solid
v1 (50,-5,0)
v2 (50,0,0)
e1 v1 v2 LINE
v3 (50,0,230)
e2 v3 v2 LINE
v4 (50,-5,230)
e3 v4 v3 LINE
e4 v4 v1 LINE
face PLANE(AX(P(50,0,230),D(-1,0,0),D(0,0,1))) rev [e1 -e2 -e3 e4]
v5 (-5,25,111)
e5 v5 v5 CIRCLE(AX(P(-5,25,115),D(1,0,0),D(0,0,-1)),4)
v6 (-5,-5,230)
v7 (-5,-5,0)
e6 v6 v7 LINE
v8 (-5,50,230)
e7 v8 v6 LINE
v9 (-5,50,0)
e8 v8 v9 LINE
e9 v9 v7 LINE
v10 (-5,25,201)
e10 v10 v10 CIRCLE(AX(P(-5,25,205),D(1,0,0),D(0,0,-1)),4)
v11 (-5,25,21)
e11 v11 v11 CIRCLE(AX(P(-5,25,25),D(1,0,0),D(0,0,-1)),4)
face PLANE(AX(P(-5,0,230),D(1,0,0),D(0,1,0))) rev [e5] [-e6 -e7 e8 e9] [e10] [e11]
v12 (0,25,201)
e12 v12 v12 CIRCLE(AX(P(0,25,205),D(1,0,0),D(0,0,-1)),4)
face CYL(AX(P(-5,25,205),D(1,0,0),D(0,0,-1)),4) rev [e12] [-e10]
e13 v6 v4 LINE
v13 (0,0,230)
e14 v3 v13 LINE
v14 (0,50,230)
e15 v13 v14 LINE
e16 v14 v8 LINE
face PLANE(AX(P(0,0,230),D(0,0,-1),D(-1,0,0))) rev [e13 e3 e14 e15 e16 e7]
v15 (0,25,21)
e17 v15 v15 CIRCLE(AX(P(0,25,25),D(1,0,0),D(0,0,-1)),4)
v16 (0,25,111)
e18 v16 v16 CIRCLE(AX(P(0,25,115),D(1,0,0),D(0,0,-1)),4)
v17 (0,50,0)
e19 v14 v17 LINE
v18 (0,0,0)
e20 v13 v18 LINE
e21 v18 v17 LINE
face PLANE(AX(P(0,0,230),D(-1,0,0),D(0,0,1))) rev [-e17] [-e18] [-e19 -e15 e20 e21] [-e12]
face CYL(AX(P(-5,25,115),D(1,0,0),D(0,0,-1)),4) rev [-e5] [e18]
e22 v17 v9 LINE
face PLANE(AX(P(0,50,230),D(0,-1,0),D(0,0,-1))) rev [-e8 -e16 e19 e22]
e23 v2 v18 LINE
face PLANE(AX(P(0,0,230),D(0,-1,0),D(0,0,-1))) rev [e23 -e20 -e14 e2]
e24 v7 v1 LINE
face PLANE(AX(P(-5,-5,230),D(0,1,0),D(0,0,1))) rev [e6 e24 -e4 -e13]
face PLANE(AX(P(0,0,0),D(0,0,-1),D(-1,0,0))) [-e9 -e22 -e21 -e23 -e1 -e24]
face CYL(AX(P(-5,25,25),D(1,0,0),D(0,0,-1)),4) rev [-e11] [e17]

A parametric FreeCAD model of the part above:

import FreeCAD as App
import Part
import Sketcher
Q = App.Units.Quantity

doc = App.newDocument("Part")
params = doc.addObject("Spreadsheet::Sheet", "Params")
for row, (alias, value) in enumerate([
    ("sketch1_width", "5 mm"),
    ("sketch1_width2", "55 mm"),
    ("pad1_length", "230 mm"),
    ("sketch2_diameter", "8 mm"),
], start=1):
    params.set(f"A{row}", alias)
    params.set(f"B{row}", "=" + value)
    params.setAlias(f"B{row}", alias)

body = doc.addObject("PartDesign::Body", "Body")

# Sketch on XY plane
sketch1 = body.newObject("Sketcher::SketchObject", "Sketch")
sketch1.AttachmentSupport = (doc.getObject("XY_Plane"), [""])
sketch1.MapMode = "FlatFace"
sketch1.addGeometry(Part.LineSegment(App.Vector(0, 0, 0), App.Vector(0, 50, 0)), False)
sketch1.addGeometry(Part.LineSegment(App.Vector(0, 50, 0), App.Vector(-5, 50, 0)), False)
sketch1.addGeometry(Part.LineSegment(App.Vector(-5, 50, 0), App.Vector(-5, -5, 0)), False)
sketch1.addGeometry(Part.LineSegment(App.Vector(-5, -5, 0), App.Vector(50, -5, 0)), False)
sketch1.addGeometry(Part.LineSegment(App.Vector(50, -5, 0), App.Vector(50, 0, 0)), False)
sketch1.addGeometry(Part.LineSegment(App.Vector(50, 0, 0), App.Vector(0, 0, 0)), False)
sketch1.addConstraint(Sketcher.Constraint("Coincident", 0, 2, 1, 1))
sketch1.addConstraint(Sketcher.Constraint("Coincident", 1, 2, 2, 1))
sketch1.addConstraint(Sketcher.Constraint("Coincident", 2, 2, 3, 1))
sketch1.addConstraint(Sketcher.Constraint("Coincident", 3, 2, 4, 1))
sketch1.addConstraint(Sketcher.Constraint("Coincident", 4, 2, 5, 1))
sketch1.addConstraint(Sketcher.Constraint("Coincident", 5, 2, 0, 1))
sketch1.addConstraint(Sketcher.Constraint("Vertical", 0))
sketch1.addConstraint(Sketcher.Constraint("Horizontal", 1))
sketch1.addConstraint(Sketcher.Constraint("Vertical", 2))
sketch1.addConstraint(Sketcher.Constraint("Horizontal", 3))
sketch1.addConstraint(Sketcher.Constraint("Vertical", 4))
sketch1.addConstraint(Sketcher.Constraint("Horizontal", 5))
sketch1.addConstraint(Sketcher.Constraint("Coincident", 5, 2, -1, 1))
sketch1.addConstraint(Sketcher.Constraint("Equal", 5, 0))
sketch1.addConstraint(Sketcher.Constraint("Equal", 3, 2))
sketch1.addConstraint(Sketcher.Constraint("DistanceX", 1, 2, 1, 1, Q("5 mm")))
sketch1.addConstraint(Sketcher.Constraint("DistanceX", 3, 1, 3, 2, Q("55 mm")))
sketch1.setExpression("Constraints[15]", "Params.sketch1_width")
sketch1.setExpression("Constraints[16]", "Params.sketch1_width2")
pad1 = body.newObject("PartDesign::Pad", "Pad")
pad1.Profile = sketch1
pad1.setExpression("Length", "Params.pad1_length")

# Sketch on YZ plane
sketch2 = body.newObject("Sketcher::SketchObject", "Sketch001")
sketch2.AttachmentSupport = (doc.getObject("YZ_Plane"), [""])
sketch2.MapMode = "FlatFace"
sketch2.addGeometry(Part.Circle(App.Vector(25, 115, 0), App.Vector(0, 0, 1), 4), False)
sketch2.addGeometry(Part.Circle(App.Vector(25, 25, 0), App.Vector(0, 0, 1), 4), False)
sketch2.addGeometry(Part.Circle(App.Vector(25, 205, 0), App.Vector(0, 0, 1), 4), False)
sketch2.addConstraint(Sketcher.Constraint("Equal", 0, 1))
sketch2.addConstraint(Sketcher.Constraint("Equal", 1, 2))
sketch2.addConstraint(Sketcher.Constraint("Vertical", 0, 3, 1, 3))
sketch2.addConstraint(Sketcher.Constraint("Vertical", 1, 3, 2, 3))
sketch2.addConstraint(Sketcher.Constraint("Diameter", 0, Q("8 mm")))
sketch2.addConstraint(Sketcher.Constraint("DistanceX", -1, 1, 0, 3, Q("25 mm")))
sketch2.addConstraint(Sketcher.Constraint("DistanceY", -1, 1, 0, 3, Q("115 mm")))
sketch2.addConstraint(Sketcher.Constraint("DistanceY", -1, 1, 1, 3, Q("25 mm")))
sketch2.addConstraint(Sketcher.Constraint("DistanceY", -1, 1, 2, 3, Q("205 mm")))
sketch2.setExpression("Constraints[4]", "Params.sketch2_diameter")
pocket1 = body.newObject("PartDesign::Pocket", "Pocket")
pocket1.Profile = sketch2
pocket1.Type = "ThroughAll"

doc.recompute()
